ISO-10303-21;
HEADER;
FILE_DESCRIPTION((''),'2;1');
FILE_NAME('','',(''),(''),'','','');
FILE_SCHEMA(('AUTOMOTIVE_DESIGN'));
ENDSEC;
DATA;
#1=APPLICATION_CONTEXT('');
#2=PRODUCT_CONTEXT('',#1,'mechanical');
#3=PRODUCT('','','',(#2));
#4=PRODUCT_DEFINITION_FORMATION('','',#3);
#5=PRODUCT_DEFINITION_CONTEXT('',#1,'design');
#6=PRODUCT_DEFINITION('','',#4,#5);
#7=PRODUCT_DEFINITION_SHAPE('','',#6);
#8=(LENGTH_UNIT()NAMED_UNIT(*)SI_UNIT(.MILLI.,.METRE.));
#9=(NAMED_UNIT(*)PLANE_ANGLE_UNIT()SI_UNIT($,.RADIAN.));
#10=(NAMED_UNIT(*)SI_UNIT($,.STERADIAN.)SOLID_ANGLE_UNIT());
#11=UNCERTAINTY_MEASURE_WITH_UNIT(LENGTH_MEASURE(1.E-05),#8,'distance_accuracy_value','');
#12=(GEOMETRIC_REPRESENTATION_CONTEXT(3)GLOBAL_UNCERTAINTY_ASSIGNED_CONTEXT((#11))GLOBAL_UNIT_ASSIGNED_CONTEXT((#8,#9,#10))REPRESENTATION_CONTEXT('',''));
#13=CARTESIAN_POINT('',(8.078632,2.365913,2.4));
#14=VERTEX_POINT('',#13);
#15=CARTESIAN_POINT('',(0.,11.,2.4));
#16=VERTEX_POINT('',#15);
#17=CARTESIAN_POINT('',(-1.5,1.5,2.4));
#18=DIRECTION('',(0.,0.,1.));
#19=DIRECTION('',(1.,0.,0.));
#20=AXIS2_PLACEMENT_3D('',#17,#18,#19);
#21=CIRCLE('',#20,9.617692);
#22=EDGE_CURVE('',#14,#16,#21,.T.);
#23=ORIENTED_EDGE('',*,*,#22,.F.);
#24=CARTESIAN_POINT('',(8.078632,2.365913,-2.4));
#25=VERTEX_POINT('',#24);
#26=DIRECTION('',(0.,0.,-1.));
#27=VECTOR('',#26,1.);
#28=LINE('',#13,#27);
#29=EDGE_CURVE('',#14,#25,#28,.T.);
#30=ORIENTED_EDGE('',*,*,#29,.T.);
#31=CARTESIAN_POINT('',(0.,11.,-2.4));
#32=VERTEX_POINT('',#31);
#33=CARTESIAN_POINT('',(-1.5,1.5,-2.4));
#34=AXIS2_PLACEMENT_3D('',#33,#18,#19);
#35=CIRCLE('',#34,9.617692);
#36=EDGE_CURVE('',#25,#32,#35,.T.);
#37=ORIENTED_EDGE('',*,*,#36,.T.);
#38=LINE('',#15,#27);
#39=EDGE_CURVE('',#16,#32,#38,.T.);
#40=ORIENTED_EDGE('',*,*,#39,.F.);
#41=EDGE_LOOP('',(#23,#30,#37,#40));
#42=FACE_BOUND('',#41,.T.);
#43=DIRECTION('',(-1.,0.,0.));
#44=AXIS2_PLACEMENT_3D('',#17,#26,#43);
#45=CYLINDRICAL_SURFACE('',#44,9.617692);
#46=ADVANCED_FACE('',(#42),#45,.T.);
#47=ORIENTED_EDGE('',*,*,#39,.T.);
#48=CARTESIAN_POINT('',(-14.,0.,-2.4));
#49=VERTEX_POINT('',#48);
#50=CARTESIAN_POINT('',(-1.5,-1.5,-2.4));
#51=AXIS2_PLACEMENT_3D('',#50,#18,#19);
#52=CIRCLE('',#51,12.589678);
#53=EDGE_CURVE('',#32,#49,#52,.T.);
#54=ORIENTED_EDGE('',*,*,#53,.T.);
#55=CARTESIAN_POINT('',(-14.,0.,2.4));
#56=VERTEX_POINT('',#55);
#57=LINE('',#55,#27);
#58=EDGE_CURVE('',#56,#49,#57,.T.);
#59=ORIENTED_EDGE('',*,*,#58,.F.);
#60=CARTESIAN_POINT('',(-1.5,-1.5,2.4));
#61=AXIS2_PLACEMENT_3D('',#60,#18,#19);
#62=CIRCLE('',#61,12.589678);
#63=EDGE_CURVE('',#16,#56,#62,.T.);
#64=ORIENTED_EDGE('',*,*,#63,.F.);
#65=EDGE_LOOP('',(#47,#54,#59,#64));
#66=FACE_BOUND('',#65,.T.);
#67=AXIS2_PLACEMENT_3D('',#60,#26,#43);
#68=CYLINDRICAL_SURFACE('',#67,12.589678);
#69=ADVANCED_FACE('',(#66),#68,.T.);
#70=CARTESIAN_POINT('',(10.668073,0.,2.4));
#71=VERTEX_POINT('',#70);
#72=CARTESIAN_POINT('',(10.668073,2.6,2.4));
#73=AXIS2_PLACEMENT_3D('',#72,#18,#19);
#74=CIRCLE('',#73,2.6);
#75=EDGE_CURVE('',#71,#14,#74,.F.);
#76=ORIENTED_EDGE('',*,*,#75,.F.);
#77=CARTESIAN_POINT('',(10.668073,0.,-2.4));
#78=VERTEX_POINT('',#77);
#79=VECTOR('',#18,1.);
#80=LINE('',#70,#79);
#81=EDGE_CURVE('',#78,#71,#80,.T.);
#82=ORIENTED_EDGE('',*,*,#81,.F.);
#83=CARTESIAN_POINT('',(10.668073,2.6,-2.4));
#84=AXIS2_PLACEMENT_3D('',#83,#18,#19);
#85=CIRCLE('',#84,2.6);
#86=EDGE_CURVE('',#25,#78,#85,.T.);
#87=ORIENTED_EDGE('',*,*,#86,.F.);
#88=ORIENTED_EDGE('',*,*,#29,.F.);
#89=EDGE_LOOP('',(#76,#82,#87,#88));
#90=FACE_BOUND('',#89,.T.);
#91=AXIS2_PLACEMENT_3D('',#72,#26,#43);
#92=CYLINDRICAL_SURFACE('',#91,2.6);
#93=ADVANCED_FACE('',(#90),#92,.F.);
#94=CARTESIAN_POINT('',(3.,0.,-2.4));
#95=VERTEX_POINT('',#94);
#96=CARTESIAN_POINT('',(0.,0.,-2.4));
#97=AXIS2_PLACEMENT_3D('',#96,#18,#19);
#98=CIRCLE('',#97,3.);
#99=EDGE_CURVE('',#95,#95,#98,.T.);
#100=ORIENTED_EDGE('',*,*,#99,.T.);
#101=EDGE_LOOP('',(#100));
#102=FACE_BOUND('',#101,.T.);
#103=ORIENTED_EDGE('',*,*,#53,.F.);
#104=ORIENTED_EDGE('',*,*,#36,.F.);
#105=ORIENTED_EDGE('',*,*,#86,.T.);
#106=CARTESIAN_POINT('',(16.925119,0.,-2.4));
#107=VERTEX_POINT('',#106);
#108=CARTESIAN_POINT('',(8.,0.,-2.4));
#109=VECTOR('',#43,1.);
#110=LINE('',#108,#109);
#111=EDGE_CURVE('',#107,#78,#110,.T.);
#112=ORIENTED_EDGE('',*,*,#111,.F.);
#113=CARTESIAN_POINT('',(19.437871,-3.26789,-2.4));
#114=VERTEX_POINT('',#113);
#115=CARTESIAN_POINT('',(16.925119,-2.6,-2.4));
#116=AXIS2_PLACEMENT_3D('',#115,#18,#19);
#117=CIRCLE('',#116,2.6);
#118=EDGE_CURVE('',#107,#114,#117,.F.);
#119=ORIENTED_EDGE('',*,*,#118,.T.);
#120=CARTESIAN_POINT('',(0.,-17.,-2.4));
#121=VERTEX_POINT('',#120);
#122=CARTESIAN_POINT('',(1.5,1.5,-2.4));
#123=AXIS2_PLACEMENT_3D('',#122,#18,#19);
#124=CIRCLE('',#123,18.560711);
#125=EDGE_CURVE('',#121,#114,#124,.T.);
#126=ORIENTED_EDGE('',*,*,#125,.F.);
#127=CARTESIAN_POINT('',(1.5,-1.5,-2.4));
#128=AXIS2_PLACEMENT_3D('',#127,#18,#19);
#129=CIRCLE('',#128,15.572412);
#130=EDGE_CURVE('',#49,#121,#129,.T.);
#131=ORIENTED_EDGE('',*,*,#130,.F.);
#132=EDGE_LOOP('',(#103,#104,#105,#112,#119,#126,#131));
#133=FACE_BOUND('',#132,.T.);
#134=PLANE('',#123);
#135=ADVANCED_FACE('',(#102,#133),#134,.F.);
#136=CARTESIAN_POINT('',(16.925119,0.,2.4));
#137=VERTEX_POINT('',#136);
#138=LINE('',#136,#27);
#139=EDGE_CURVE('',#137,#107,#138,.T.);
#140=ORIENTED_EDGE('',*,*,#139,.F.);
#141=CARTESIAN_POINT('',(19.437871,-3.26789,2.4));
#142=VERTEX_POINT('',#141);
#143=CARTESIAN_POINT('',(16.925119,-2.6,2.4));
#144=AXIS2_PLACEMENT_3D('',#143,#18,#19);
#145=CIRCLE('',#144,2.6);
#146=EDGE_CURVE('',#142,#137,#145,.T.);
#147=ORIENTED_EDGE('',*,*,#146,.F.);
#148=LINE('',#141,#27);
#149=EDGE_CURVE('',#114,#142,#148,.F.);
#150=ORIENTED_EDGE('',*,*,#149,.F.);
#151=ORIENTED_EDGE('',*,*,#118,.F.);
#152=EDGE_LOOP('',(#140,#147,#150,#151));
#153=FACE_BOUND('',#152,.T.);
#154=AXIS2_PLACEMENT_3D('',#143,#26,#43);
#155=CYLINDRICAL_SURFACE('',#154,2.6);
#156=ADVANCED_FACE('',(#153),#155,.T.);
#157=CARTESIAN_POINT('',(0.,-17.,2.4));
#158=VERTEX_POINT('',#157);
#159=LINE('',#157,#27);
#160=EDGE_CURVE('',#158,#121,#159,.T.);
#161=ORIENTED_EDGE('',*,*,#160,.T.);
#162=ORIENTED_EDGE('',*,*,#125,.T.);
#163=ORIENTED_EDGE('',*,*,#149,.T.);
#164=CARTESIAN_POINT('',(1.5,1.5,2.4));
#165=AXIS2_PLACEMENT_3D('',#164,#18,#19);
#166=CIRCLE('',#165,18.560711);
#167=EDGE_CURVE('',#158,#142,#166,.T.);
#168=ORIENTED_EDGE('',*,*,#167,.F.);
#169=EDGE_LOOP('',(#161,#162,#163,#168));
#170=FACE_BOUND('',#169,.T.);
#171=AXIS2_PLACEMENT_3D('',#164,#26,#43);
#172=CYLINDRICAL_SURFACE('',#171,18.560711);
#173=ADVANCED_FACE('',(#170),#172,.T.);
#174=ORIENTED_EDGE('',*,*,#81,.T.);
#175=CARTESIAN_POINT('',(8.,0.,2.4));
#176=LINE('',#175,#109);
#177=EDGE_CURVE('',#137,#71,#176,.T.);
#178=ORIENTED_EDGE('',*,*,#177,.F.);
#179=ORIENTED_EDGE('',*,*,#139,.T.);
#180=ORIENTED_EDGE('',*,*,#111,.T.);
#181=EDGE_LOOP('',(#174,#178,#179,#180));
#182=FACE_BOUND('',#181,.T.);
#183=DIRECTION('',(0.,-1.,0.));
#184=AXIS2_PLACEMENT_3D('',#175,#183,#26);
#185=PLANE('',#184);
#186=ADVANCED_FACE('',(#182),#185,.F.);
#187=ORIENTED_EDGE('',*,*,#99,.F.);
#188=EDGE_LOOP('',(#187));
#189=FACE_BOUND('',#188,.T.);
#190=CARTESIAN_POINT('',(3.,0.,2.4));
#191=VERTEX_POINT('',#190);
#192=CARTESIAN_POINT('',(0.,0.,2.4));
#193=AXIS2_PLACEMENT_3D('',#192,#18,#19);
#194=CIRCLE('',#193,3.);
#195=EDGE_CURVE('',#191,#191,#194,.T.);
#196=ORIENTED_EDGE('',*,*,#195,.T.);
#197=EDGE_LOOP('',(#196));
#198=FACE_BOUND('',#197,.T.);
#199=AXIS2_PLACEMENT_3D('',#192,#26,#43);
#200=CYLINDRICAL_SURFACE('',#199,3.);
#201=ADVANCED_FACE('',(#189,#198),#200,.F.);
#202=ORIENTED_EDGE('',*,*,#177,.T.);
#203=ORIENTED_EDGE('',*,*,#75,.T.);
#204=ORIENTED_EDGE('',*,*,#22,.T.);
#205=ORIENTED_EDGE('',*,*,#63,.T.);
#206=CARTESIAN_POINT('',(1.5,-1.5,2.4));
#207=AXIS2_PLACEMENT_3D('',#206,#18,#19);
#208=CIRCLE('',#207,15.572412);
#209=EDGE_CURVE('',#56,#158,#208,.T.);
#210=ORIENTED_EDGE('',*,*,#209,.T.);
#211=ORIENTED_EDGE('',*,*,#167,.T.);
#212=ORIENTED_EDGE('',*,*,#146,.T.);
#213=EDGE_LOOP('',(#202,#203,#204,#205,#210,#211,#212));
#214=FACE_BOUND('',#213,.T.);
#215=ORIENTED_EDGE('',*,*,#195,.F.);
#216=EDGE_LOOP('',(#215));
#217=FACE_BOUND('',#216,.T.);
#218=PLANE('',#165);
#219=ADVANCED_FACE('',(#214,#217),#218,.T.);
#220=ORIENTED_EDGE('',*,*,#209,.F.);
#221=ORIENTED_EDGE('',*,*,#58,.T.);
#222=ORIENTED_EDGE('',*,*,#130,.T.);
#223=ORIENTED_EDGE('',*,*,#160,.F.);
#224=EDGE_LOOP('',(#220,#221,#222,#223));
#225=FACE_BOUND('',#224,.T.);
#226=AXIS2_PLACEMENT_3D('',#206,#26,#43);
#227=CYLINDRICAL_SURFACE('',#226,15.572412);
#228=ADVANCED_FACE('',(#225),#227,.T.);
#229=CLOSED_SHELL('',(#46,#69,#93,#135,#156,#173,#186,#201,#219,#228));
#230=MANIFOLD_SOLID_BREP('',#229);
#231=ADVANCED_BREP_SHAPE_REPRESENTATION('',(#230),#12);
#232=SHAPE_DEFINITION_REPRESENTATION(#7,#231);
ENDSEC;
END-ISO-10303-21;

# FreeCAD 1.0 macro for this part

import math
import FreeCAD as App
import Part
import Sketcher
from FreeCAD import Vector


def edges_at(feature, points):
    """Names of the edges that pass closest to the given points."""
    edges = feature.Shape.Edges
    near = lambda p: min(range(len(edges)), key=lambda i: edges[i].distToShape(Part.Vertex(*p))[0])
    return sorted({f"Edge{near(p) + 1}" for p in points})

doc = App.newDocument("Part")
body = doc.addObject("PartDesign::Body", "Body")

# Sketch on XY plane
sketch1 = doc.addObject("Sketcher::SketchObject", "Sketch")
body.addObject(sketch1)
sketch1.AttachmentSupport = (doc.XY_Plane, [""])
sketch1.MapMode = "FlatFace"
sketch1.addGeometry([
    Part.LineSegment(Vector(20, 0, 0), Vector(8, 0, 0)),  # 0
    Part.ArcOfCircle(Part.Circle(Vector(-1.5, 1.5, 0), Vector(0, 0, 1), 9.6), math.radians(-9), math.radians(81)),  # 1
    Part.ArcOfCircle(Part.Circle(Vector(-1.5, -1.5, 0), Vector(0, 0, 1), 12.6), math.radians(83), math.radians(173)),  # 2
    Part.ArcOfCircle(Part.Circle(Vector(1.5, -1.5, 0), Vector(0, 0, 1), 15.6), math.radians(174), math.radians(264)),  # 3
    Part.ArcOfCircle(Part.Circle(Vector(1.5, 1.5, 0), Vector(0, 0, 1), 18.6), math.radians(-95), math.radians(-5)),  # 4
    Part.Circle(Vector(0, 0, 0), Vector(0, 0, 1), 3),  # 5
], False)
sketch1.addConstraint([
    Sketcher.Constraint("Coincident", 0, 2, 1, 1),
    Sketcher.Constraint("Coincident", 1, 2, 2, 1),
    Sketcher.Constraint("Coincident", 2, 2, 3, 1),
    Sketcher.Constraint("Coincident", 3, 2, 4, 1),
    Sketcher.Constraint("Coincident", 4, 2, 0, 1),
    Sketcher.Constraint("Horizontal", 0),
    Sketcher.Constraint("Coincident", 5, 3, -1, 1),
    Sketcher.Constraint("Symmetric", 1, 3, 3, 3, -1, 1),
    Sketcher.Constraint("Symmetric", 2, 3, 4, 3, -1, 1),
    Sketcher.Constraint("Symmetric", 2, 3, 3, 3, -2),
    Sketcher.Constraint("PointOnObject", 0, 2, -1),
    Sketcher.Constraint("PointOnObject", 1, 2, -2),
    Sketcher.Constraint("PointOnObject", 2, 2, -1),
    Sketcher.Constraint("PointOnObject", 3, 2, -2),
    Sketcher.Constraint("Diameter", 5, 6.0),
    Sketcher.Constraint("DistanceX", 0, 2, 0, 1, 12.0),
    Sketcher.Constraint("DistanceX", -1, 1, 0, 2, 8.0),
    Sketcher.Constraint("DistanceY", -1, 1, 1, 2, 11.0),
])
pad1 = doc.addObject("PartDesign::Pad", "Pad")
body.addObject(pad1)
pad1.Profile = sketch1
pad1.Length = 4.8
pad1.Midplane = True
doc.recompute()

fillet = doc.addObject("PartDesign::Fillet", "Fillet")
body.addObject(fillet)
fillet.Base = (pad1, edges_at(pad1, [(8, 0, 0), (20, 0, 0)]))
fillet.Radius = 2.6

doc.recompute()
